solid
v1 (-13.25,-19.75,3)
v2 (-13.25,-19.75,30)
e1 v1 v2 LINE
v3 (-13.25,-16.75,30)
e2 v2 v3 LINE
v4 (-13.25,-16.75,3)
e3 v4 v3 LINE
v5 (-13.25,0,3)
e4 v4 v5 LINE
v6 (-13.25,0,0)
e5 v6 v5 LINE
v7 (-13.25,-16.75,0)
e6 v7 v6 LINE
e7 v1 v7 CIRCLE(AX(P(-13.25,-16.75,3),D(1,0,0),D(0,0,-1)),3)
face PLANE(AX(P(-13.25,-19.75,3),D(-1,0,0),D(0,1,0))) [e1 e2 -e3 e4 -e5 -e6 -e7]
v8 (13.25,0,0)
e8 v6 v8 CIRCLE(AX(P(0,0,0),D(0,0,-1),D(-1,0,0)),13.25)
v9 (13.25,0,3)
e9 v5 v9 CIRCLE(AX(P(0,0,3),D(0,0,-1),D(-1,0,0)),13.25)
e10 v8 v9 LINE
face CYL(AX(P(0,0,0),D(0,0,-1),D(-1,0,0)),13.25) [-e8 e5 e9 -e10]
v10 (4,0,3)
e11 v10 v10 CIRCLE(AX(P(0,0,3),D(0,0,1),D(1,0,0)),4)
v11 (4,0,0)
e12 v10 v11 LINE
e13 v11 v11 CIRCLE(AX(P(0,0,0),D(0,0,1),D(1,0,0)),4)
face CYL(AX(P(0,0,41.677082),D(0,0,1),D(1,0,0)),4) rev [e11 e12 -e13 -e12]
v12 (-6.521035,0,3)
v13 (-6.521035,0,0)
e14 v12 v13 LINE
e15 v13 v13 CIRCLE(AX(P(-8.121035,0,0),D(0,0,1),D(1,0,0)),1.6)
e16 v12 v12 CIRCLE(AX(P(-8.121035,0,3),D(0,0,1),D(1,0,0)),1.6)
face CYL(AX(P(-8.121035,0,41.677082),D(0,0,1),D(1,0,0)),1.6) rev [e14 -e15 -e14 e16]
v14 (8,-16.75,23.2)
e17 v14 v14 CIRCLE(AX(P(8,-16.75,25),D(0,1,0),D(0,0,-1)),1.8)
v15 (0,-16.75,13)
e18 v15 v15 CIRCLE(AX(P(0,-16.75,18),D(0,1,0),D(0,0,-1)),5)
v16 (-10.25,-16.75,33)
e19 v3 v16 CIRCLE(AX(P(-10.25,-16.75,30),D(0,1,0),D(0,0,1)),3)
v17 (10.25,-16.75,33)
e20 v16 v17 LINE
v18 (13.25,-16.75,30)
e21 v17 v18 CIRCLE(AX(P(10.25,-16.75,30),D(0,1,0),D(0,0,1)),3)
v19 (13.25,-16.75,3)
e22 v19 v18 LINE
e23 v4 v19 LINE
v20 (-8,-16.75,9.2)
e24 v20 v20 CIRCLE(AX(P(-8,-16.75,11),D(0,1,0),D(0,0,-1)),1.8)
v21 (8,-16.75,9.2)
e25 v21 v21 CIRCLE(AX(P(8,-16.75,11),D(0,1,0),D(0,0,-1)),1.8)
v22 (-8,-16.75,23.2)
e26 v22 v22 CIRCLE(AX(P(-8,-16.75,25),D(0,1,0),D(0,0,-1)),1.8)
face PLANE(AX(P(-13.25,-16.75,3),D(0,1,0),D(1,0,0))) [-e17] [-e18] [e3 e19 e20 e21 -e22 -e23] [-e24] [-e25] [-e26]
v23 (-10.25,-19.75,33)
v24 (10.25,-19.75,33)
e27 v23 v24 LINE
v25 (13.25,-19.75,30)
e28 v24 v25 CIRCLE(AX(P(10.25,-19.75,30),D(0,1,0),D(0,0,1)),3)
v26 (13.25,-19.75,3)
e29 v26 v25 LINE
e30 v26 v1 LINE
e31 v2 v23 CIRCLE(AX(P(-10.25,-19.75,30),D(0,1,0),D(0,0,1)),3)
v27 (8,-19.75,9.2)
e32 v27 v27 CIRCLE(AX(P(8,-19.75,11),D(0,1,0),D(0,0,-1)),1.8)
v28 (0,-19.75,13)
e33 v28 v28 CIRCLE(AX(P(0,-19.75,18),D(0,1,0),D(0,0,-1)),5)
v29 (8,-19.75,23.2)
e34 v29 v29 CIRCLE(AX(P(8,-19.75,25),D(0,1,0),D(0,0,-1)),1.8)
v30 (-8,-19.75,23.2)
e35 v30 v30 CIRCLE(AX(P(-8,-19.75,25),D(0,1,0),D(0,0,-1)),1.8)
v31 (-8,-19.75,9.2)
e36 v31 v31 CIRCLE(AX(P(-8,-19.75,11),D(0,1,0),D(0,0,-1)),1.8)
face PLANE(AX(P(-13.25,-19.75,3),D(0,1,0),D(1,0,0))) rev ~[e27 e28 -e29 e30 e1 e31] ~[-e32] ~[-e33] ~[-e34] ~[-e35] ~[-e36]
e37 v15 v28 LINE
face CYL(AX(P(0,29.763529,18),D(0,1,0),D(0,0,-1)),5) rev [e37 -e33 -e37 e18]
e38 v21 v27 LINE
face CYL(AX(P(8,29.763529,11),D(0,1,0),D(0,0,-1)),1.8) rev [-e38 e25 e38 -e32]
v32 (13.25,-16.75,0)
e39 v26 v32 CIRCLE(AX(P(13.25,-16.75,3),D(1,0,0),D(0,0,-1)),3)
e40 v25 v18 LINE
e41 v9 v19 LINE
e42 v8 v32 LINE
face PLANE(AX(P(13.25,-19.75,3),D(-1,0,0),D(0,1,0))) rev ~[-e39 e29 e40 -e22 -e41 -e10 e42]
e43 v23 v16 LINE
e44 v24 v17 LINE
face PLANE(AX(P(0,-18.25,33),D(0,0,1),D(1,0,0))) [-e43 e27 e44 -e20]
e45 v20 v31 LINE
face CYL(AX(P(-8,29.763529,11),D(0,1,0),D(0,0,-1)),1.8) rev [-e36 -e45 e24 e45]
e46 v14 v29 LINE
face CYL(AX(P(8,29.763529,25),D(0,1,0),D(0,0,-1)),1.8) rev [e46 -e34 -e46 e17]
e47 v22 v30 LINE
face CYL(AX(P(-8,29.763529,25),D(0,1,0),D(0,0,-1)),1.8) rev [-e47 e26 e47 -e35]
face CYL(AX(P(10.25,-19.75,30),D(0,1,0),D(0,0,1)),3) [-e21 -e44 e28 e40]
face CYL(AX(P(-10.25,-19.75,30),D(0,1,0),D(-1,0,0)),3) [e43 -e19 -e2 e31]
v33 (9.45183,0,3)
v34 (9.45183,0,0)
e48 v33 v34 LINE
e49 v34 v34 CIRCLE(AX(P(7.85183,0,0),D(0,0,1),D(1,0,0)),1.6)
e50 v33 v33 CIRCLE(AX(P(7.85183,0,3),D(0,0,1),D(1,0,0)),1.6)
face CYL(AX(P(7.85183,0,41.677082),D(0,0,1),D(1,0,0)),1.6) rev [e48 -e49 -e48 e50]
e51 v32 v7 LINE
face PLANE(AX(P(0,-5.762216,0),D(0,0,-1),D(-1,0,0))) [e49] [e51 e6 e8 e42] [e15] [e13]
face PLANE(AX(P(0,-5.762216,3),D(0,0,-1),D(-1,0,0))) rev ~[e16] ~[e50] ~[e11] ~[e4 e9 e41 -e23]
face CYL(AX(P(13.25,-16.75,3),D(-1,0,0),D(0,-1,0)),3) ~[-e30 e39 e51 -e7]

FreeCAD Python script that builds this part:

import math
import FreeCAD as App
import Part
import Sketcher
from FreeCAD import Vector


def edges_at(feature, points):
    """Names of the edges that pass closest to the given points."""
    edges = feature.Shape.Edges
    near = lambda p: min(range(len(edges)), key=lambda i: edges[i].distToShape(Part.Vertex(*p))[0])
    return sorted({f"Edge{near(p) + 1}" for p in points})

doc = App.newDocument("Part")
body = doc.addObject("PartDesign::Body", "Body")

sketch1 = doc.addObject("Sketcher::SketchObject", "Sketch")
body.addObject(sketch1)
sketch1.AttachmentSupport = (doc.XY_Plane, [""])
sketch1.MapMode = "FlatFace"
sketch1.addGeometry([
    Part.LineSegment(Vector(13, -20, 0), Vector(13, 0, 0)),
    Part.ArcOfCircle(Part.Circle(Vector(0, 0, 0), Vector(0, 0, 1), 13), math.radians(0), math.radians(180)),
    Part.LineSegment(Vector(-13, 0, 0), Vector(-13, -20, 0)),
    Part.LineSegment(Vector(-13, -20, 0), Vector(13, -20, 0)),
], False)
sketch1.addConstraint([
    Sketcher.Constraint("Tangent", 0, 2, 1, 1),
    Sketcher.Constraint("Tangent", 1, 2, 2, 1),
    Sketcher.Constraint("Coincident", 2, 2, 3, 1),
    Sketcher.Constraint("Coincident", 3, 2, 0, 1),
    Sketcher.Constraint("Vertical", 0),
    Sketcher.Constraint("Vertical", 2),
    Sketcher.Constraint("Horizontal", 3),
    Sketcher.Constraint("Coincident", 1, 3, -1, 1),
    Sketcher.Constraint("Radius", 1, 13.25),
    Sketcher.Constraint("DistanceY", 0, 1, 0, 2, 19.75),
])
pad1 = doc.addObject("PartDesign::Pad", "Pad")
body.addObject(pad1)
pad1.Profile = sketch1
pad1.Length = 3

sketch2 = doc.addObject("Sketcher::SketchObject", "Sketch001")
body.addObject(sketch2)
sketch2.AttachmentSupport = (doc.XY_Plane, [""])
sketch2.MapMode = "FlatFace"
sketch2.AttachmentOffset = App.Placement(Vector(0, 0, 3), App.Rotation())
sketch2.addGeometry([
    Part.LineSegment(Vector(-13.2, -16.8, 0), Vector(-13.2, -19.8, 0)),
    Part.LineSegment(Vector(-13.2, -19.8, 0), Vector(13.2, -19.8, 0)),
    Part.LineSegment(Vector(13.2, -19.8, 0), Vector(13.2, -16.8, 0)),
    Part.LineSegment(Vector(13.2, -16.8, 0), Vector(-13.2, -16.8, 0)),
], False)
sketch2.addConstraint([
    Sketcher.Constraint("Coincident", 0, 2, 1, 1),
    Sketcher.Constraint("Coincident", 1, 2, 2, 1),
    Sketcher.Constraint("Coincident", 2, 2, 3, 1),
    Sketcher.Constraint("Coincident", 3, 2, 0, 1),
    Sketcher.Constraint("Vertical", 0),
    Sketcher.Constraint("Horizontal", 1),
    Sketcher.Constraint("Vertical", 2),
    Sketcher.Constraint("Horizontal", 3),
    Sketcher.Constraint("DistanceY", 0, 2, 0, 1, 3.0),
    Sketcher.Constraint("DistanceX", 1, 1, 1, 2, 26.5),
    Sketcher.Constraint("DistanceX", 0, 2, -1, 1, 13.25),
    Sketcher.Constraint("DistanceY", 0, 2, -1, 1, 19.75),
])
pad2 = doc.addObject("PartDesign::Pad", "Pad001")
body.addObject(pad2)
pad2.Profile = sketch2
pad2.Length = 30
doc.recompute()

fillet = doc.addObject("PartDesign::Fillet", "Fillet")
body.addObject(fillet)
fillet.Base = (pad2, edges_at(pad2, [(0, -19.75, 0)]))
fillet.Radius = 3
doc.recompute()

fillet2 = doc.addObject("PartDesign::Fillet", "Fillet001")
body.addObject(fillet2)
fillet2.Base = (fillet, edges_at(fillet, [(-13.25, -18.25, 33), (13.25, -18.25, 33)]))
fillet2.Radius = 3

sketch3 = doc.addObject("Sketcher::SketchObject", "Sketch002")
body.addObject(sketch3)
sketch3.AttachmentSupport = (doc.XY_Plane, [""])
sketch3.MapMode = "FlatFace"
sketch3.addGeometry(Part.Circle(Vector(0, 0, 0), Vector(0, 0, 1), 4), False)
sketch3.addConstraint([
    Sketcher.Constraint("Coincident", 0, 3, -1, 1),
    Sketcher.Constraint("Diameter", 0, 8.0),
])
pocket1 = doc.addObject("PartDesign::Pocket", "Pocket")
body.addObject(pocket1)
pocket1.Profile = sketch3
pocket1.Type = "ThroughAll"
pocket1.Midplane = True

sketch4 = doc.addObject("Sketcher::SketchObject", "Sketch003")
body.addObject(sketch4)
sketch4.AttachmentSupport = (doc.XY_Plane, [""])
sketch4.MapMode = "FlatFace"
sketch4.addGeometry([
    Part.Circle(Vector(-8.1, 0, 0), Vector(0, 0, 1), 1.6),
    Part.Circle(Vector(7.9, 0, 0), Vector(0, 0, 1), 1.6),
], False)
sketch4.addConstraint([
    Sketcher.Constraint("Equal", 0, 1),
    Sketcher.Constraint("PointOnObject", 0, 3, -1),
    Sketcher.Constraint("PointOnObject", 1, 3, -1),
    Sketcher.Constraint("Diameter", 0, 3.2),
    Sketcher.Constraint("DistanceX", -1, 1, 1, 3, 7.85183),
    Sketcher.Constraint("DistanceX", 0, 3, -1, 1, 8.121035),
])
pocket2 = doc.addObject("PartDesign::Pocket", "Pocket001")
body.addObject(pocket2)
pocket2.Profile = sketch4
pocket2.Type = "ThroughAll"
pocket2.Midplane = True

sketch5 = doc.addObject("Sketcher::SketchObject", "Sketch004")
body.addObject(sketch5)
sketch5.AttachmentSupport = (doc.XZ_Plane, [""])
sketch5.MapMode = "FlatFace"
sketch5.AttachmentOffset = App.Placement(Vector(0, 0, 19.75), App.Rotation())
sketch5.addGeometry(Part.Circle(Vector(0, 18, 0), Vector(0, 0, 1), 5), False)
sketch5.addConstraint([
    Sketcher.Constraint("PointOnObject", 0, 3, -2),
    Sketcher.Constraint("Diameter", 0, 10.0),
    Sketcher.Constraint("DistanceY", -1, 1, 0, 3, 18.0),
])
pocket3 = doc.addObject("PartDesign::Pocket", "Pocket002")
body.addObject(pocket3)
pocket3.Profile = sketch5
pocket3.Type = "ThroughAll"
pocket3.Midplane = True

sketch6 = doc.addObject("Sketcher::SketchObject", "Sketch005")
body.addObject(sketch6)
sketch6.AttachmentSupport = (doc.XZ_Plane, [""])
sketch6.MapMode = "FlatFace"
sketch6.AttachmentOffset = App.Placement(Vector(0, 0, 19.75), App.Rotation())
sketch6.addGeometry([
    Part.Circle(Vector(8, 11, 0), Vector(0, 0, 1), 1.8),
    Part.Circle(Vector(-8, 11, 0), Vector(0, 0, 1), 1.8),
    Part.Circle(Vector(-8, 25, 0), Vector(0, 0, 1), 1.8),
    Part.Circle(Vector(8, 25, 0), Vector(0, 0, 1), 1.8),
], False)
sketch6.addConstraint([
    Sketcher.Constraint("Equal", 0, 1),
    Sketcher.Constraint("Equal", 1, 2),
    Sketcher.Constraint("Equal", 2, 3),
    Sketcher.Constraint("Symmetric", 0, 3, 1, 3, -2),
    Sketcher.Constraint("Symmetric", 2, 3, 3, 3, -2),
    Sketcher.Constraint("Vertical", 1, 3, 2, 3),
    Sketcher.Constraint("Diameter", 0, 3.6),
    Sketcher.Constraint("DistanceX", -1, 1, 0, 3, 8.0),
    Sketcher.Constraint("DistanceY", -1, 1, 0, 3, 11.0),
    Sketcher.Constraint("DistanceY", -1, 1, 2, 3, 25.0),
])
pocket4 = doc.addObject("PartDesign::Pocket", "Pocket003")
body.addObject(pocket4)
pocket4.Profile = sketch6
pocket4.Type = "ThroughAll"
pocket4.Midplane = True

doc.recompute()
